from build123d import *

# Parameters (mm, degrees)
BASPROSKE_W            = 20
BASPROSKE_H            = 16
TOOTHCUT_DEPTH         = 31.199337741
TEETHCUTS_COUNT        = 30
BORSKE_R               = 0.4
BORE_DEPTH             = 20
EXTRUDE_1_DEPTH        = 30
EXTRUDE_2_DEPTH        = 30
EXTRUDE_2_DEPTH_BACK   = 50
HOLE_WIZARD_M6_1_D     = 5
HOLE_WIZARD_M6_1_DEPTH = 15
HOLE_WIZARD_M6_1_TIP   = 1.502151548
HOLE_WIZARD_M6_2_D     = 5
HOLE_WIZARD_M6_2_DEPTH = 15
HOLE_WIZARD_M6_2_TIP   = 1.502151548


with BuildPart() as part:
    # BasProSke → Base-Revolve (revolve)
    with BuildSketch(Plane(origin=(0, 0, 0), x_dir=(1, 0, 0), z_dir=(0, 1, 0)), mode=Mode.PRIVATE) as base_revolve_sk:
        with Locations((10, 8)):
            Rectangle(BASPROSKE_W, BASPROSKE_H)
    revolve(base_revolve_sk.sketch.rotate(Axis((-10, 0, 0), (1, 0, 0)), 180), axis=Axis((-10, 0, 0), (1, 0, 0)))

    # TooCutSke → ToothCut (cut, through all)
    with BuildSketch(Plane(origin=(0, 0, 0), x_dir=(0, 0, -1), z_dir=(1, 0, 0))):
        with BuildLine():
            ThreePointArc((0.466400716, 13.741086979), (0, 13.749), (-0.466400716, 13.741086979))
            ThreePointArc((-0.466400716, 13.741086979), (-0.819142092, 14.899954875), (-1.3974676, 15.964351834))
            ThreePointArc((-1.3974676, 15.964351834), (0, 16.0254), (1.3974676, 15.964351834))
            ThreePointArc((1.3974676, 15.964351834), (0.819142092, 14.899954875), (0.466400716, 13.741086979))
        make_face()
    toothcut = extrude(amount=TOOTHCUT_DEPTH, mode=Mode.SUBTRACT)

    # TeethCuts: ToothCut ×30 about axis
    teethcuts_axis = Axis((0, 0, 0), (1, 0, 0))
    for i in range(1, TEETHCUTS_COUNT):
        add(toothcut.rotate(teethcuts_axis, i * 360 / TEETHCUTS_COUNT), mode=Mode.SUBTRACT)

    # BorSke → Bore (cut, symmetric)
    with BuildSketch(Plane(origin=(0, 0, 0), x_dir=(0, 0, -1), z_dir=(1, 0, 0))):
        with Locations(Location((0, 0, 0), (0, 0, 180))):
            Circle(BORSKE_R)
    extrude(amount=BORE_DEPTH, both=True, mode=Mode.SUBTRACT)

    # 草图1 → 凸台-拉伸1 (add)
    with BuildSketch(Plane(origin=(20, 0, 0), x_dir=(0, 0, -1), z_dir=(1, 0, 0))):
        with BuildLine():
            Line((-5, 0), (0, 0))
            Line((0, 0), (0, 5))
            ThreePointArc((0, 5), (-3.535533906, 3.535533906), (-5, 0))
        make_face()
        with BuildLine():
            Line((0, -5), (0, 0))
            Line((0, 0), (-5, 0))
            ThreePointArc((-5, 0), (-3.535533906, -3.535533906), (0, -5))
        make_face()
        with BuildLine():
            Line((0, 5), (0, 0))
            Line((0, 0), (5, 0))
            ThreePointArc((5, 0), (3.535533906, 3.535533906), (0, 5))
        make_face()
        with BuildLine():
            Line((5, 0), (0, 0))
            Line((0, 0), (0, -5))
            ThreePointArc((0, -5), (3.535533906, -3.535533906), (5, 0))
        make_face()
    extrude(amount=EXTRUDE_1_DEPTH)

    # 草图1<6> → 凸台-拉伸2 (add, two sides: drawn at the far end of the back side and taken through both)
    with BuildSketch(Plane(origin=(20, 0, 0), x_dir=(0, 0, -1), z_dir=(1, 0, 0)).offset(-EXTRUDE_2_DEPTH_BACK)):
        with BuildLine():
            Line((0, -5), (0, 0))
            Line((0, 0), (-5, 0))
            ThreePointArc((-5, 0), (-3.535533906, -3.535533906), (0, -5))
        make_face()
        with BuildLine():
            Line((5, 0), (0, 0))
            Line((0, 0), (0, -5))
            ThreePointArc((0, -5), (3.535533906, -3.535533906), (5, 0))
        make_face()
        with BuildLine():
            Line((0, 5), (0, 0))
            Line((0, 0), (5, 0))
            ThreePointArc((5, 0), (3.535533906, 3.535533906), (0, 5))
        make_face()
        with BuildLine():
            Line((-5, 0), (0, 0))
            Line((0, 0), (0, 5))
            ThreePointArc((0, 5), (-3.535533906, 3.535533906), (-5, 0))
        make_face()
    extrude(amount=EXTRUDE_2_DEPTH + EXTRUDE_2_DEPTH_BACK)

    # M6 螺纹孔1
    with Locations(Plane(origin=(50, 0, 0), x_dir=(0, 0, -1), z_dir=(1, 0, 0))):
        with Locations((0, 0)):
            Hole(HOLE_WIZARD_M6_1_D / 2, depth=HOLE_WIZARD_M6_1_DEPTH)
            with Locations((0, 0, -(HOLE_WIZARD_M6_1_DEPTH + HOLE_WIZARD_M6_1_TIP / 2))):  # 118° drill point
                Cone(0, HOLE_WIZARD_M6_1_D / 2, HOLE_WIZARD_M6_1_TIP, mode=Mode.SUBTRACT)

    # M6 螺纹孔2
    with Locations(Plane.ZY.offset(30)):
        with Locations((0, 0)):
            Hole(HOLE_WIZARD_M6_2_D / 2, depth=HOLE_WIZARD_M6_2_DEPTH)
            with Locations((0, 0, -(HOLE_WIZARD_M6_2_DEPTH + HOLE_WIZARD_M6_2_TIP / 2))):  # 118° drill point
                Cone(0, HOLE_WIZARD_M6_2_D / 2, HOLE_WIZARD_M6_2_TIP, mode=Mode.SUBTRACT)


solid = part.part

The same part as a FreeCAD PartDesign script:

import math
import FreeCAD as App
import Part
import Sketcher

V = App.Vector


def add_polygon(sketch, points):
    """Adds a closed chain of lines whose ends are joined by coincident constraints."""
    first, n = sketch.GeometryCount, len(points)
    for a, b in zip(points, points[1:] + points[:1]):
        sketch.addGeometry(Part.LineSegment(App.Vector(*a, 0), App.Vector(*b, 0)), False)
    for i in range(n):
        sketch.addConstraint(Sketcher.Constraint("Coincident", first + i, 2, first + (i + 1) % n, 1))

doc = App.newDocument("Part")
body = doc.addObject("PartDesign::Body", "Body")

sketch1 = body.newObject("Sketcher::SketchObject", "Sketch")
sketch1.AttachmentSupport = (doc.getObject("XZ_Plane"), [""])
sketch1.MapMode = "FlatFace"
add_polygon(sketch1, [(0, -16), (0, 0), (20, 0), (20, -16)])
sketch1.addConstraint([
    Sketcher.Constraint("Vertical", 0),
    Sketcher.Constraint("Horizontal", 1),
    Sketcher.Constraint("Vertical", 2),
    Sketcher.Constraint("Horizontal", 3),
    Sketcher.Constraint("Coincident", 0, 2, -1, 1),
    Sketcher.Constraint("DistanceX", 1, 1, 1, 2, 20.0),
    Sketcher.Constraint("DistanceY", 0, 1, 0, 2, 16.0),
])
revolution = body.newObject("PartDesign::Revolution", "Revolution")
revolution.Profile = sketch1
revolution.ReferenceAxis = (sketch1, ["H_Axis"])
revolution.Angle = 360

sketch2 = body.newObject("Sketcher::SketchObject", "Sketch001")
sketch2.AttachmentSupport = (doc.getObject("YZ_Plane"), [""])
sketch2.MapMode = "FlatFace"
sketch2.addGeometry([
    Part.ArcOfCircle(Part.Circle(V(0, 0, 0), V(0, 0, 1), 13.7), math.radians(-1.94), math.radians(1.94)),
    Part.ArcOfCircle(Part.Circle(V(12.6, -6.4, 0), V(0, 0, 1), 6), math.radians(56), math.radians(79)),
    Part.ArcOfCircle(Part.Circle(V(0, 0, 0), V(0, 0, 1), 16), math.radians(-5), math.radians(5)),
    Part.ArcOfCircle(Part.Circle(V(12.6, 6.4, 0), V(0, 0, 1), 6), math.radians(-79), math.radians(-56)),
], False)
sketch2.addConstraint([
    Sketcher.Constraint("Coincident", 0, 1, 1, 2),
    Sketcher.Constraint("Coincident", 1, 1, 2, 1),
    Sketcher.Constraint("Coincident", 2, 2, 3, 2),
    Sketcher.Constraint("Coincident", 3, 1, 0, 2),
    Sketcher.Constraint("Coincident", 0, 3, -1, 1),
    Sketcher.Constraint("Coincident", 2, 3, -1, 1),
    Sketcher.Constraint("Equal", 1, 3),
    Sketcher.Constraint("Symmetric", 1, 3, 3, 3, -1),
    Sketcher.Constraint("Radius", 1, 6.0),
    Sketcher.Constraint("Radius", 0, 13.749),
    Sketcher.Constraint("Radius", 2, 16.0254),
    Sketcher.Constraint("DistanceY", 0, 1, -1, 1, 0.466401),
    Sketcher.Constraint("DistanceX", -1, 1, 1, 1, 15.964352),
])
pocket1 = body.newObject("PartDesign::Pocket", "Pocket")
pocket1.Profile = sketch2
pocket1.Type = "ThroughAll"
pocket1.Reversed = True
doc.recompute()

polarpattern = body.newObject("PartDesign::PolarPattern", "PolarPattern")
polarpattern.Originals = [pocket1]
polarpattern.Axis = (doc.getObject("X_Axis"), [""])
polarpattern.Angle = 360
polarpattern.Occurrences = 30
body.Tip = polarpattern

sketch3 = body.newObject("Sketcher::SketchObject", "Sketch002")
sketch3.AttachmentSupport = (doc.getObject("YZ_Plane"), [""])
sketch3.MapMode = "FlatFace"
sketch3.addGeometry(Part.Circle(V(0, 0, 0), V(0, 0, 1), 0.4), False)
sketch3.addConstraint([
    Sketcher.Constraint("Coincident", 0, 3, -1, 1),
    Sketcher.Constraint("Diameter", 0, 0.8),
])
pocket2 = body.newObject("PartDesign::Pocket", "Pocket001")
pocket2.Profile = sketch3
pocket2.Length = 40
pocket2.Midplane = True

sketch4 = body.newObject("Sketcher::SketchObject", "Sketch003")
sketch4.AttachmentSupport = (doc.getObject("YZ_Plane"), [""])
sketch4.MapMode = "FlatFace"
sketch4.AttachmentOffset = App.Placement(V(0, 0, 20), App.Rotation())
sketch4.addGeometry([
    Part.ArcOfCircle(Part.Circle(V(0, 0, 0), V(0, 0, 1), 5), math.radians(0), math.radians(90)),
    Part.ArcOfCircle(Part.Circle(V(0, 0, 0), V(0, 0, 1), 5), math.radians(90), math.radians(180)),
    Part.ArcOfCircle(Part.Circle(V(0, 0, 0), V(0, 0, 1), 5), math.radians(180), math.radians(270)),
    Part.ArcOfCircle(Part.Circle(V(0, 0, 0), V(0, 0, 1), 5), math.radians(-90), math.radians(0)),
], False)
sketch4.addConstraint([
    Sketcher.Constraint("Tangent", 0, 2, 1, 1),
    Sketcher.Constraint("Tangent", 1, 2, 2, 1),
    Sketcher.Constraint("Tangent", 2, 2, 3, 1),
    Sketcher.Constraint("Tangent", 3, 2, 0, 1),
    Sketcher.Constraint("Coincident", 0, 3, -1, 1),
    Sketcher.Constraint("Equal", 0, 1),
    Sketcher.Constraint("PointOnObject", 0, 2, -2),
    Sketcher.Constraint("PointOnObject", 1, 2, -1),
    Sketcher.Constraint("PointOnObject", 2, 2, -2),
    Sketcher.Constraint("PointOnObject", 3, 2, -1),
    Sketcher.Constraint("Radius", 0, 5.0),
])
pad1 = body.newObject("PartDesign::Pad", "Pad")
pad1.Profile = sketch4
pad1.Length = 30

sketch5 = body.newObject("Sketcher::SketchObject", "Sketch004")
sketch5.AttachmentSupport = (doc.getObject("YZ_Plane"), [""])
sketch5.MapMode = "FlatFace"
sketch5.AttachmentOffset = App.Placement(V(0, 0, 20), App.Rotation())
sketch5.addGeometry([
    Part.ArcOfCircle(Part.Circle(V(0, 0, 0), V(0, 0, 1), 5), math.radians(90), math.radians(180)),
    Part.ArcOfCircle(Part.Circle(V(0, 0, 0), V(0, 0, 1), 5), math.radians(180), math.radians(270)),
    Part.ArcOfCircle(Part.Circle(V(0, 0, 0), V(0, 0, 1), 5), math.radians(-90), math.radians(0)),
    Part.ArcOfCircle(Part.Circle(V(0, 0, 0), V(0, 0, 1), 5), math.radians(0), math.radians(90)),
], False)
sketch5.addConstraint([
    Sketcher.Constraint("Tangent", 0, 2, 1, 1),
    Sketcher.Constraint("Tangent", 1, 2, 2, 1),
    Sketcher.Constraint("Tangent", 2, 2, 3, 1),
    Sketcher.Constraint("Tangent", 3, 2, 0, 1),
    Sketcher.Constraint("Coincident", 0, 3, -1, 1),
    Sketcher.Constraint("Equal", 0, 1),
    Sketcher.Constraint("PointOnObject", 0, 2, -1),
    Sketcher.Constraint("PointOnObject", 1, 2, -2),
    Sketcher.Constraint("PointOnObject", 2, 2, -1),
    Sketcher.Constraint("PointOnObject", 3, 2, -2),
    Sketcher.Constraint("Radius", 0, 5.0),
])
pad2 = body.newObject("PartDesign::Pad", "Pad001")
pad2.Profile = sketch5
pad2.Type = "TwoLengths"
pad2.Length = 30
pad2.Length2 = 50

sketch6 = body.newObject("Sketcher::SketchObject", "Sketch005")
sketch6.AttachmentSupport = (doc.getObject("YZ_Plane"), [""])
sketch6.MapMode = "FlatFace"
sketch6.AttachmentOffset = App.Placement(V(0, 0, 50), App.Rotation())
sketch6.addGeometry(Part.Circle(V(0, 0, 0), V(0, 0, 1), 2.5), False)
sketch6.addConstraint([
    Sketcher.Constraint("Coincident", 0, 3, -1, 1),
    Sketcher.Constraint("Diameter", 0, 5.0),
])
doc.recompute()
hole = body.newObject("PartDesign::Hole", "Hole")
hole.Profile = sketch6
hole.ThreadType = "None"
hole.Diameter = 5
hole.DepthType = "Dimension"
hole.Depth = 15
hole.DrillPoint = "Angled"
hole.DrillPointAngle = 118

sketch7 = body.newObject("Sketcher::SketchObject", "Sketch006")
sketch7.AttachmentSupport = (doc.getObject("YZ_Plane"), [""])
sketch7.MapMode = "FlatFace"
sketch7.AttachmentOffset = App.Placement(V(0, 0, -30), App.Rotation())
sketch7.addGeometry(Part.Circle(V(0, 0, 0), V(0, 0, 1), 2.5), False)
sketch7.addConstraint([
    Sketcher.Constraint("Coincident", 0, 3, -1, 1),
    Sketcher.Constraint("Diameter", 0, 5.0),
])
doc.recompute()
hole2 = body.newObject("PartDesign::Hole", "Hole001")
hole2.Profile = sketch7
hole2.ThreadType = "None"
hole2.Diameter = 5
hole2.DepthType = "Dimension"
hole2.Depth = 15
hole2.DrillPoint = "Angled"
hole2.DrillPointAngle = 118
hole2.Reversed = True

doc.recompute()
